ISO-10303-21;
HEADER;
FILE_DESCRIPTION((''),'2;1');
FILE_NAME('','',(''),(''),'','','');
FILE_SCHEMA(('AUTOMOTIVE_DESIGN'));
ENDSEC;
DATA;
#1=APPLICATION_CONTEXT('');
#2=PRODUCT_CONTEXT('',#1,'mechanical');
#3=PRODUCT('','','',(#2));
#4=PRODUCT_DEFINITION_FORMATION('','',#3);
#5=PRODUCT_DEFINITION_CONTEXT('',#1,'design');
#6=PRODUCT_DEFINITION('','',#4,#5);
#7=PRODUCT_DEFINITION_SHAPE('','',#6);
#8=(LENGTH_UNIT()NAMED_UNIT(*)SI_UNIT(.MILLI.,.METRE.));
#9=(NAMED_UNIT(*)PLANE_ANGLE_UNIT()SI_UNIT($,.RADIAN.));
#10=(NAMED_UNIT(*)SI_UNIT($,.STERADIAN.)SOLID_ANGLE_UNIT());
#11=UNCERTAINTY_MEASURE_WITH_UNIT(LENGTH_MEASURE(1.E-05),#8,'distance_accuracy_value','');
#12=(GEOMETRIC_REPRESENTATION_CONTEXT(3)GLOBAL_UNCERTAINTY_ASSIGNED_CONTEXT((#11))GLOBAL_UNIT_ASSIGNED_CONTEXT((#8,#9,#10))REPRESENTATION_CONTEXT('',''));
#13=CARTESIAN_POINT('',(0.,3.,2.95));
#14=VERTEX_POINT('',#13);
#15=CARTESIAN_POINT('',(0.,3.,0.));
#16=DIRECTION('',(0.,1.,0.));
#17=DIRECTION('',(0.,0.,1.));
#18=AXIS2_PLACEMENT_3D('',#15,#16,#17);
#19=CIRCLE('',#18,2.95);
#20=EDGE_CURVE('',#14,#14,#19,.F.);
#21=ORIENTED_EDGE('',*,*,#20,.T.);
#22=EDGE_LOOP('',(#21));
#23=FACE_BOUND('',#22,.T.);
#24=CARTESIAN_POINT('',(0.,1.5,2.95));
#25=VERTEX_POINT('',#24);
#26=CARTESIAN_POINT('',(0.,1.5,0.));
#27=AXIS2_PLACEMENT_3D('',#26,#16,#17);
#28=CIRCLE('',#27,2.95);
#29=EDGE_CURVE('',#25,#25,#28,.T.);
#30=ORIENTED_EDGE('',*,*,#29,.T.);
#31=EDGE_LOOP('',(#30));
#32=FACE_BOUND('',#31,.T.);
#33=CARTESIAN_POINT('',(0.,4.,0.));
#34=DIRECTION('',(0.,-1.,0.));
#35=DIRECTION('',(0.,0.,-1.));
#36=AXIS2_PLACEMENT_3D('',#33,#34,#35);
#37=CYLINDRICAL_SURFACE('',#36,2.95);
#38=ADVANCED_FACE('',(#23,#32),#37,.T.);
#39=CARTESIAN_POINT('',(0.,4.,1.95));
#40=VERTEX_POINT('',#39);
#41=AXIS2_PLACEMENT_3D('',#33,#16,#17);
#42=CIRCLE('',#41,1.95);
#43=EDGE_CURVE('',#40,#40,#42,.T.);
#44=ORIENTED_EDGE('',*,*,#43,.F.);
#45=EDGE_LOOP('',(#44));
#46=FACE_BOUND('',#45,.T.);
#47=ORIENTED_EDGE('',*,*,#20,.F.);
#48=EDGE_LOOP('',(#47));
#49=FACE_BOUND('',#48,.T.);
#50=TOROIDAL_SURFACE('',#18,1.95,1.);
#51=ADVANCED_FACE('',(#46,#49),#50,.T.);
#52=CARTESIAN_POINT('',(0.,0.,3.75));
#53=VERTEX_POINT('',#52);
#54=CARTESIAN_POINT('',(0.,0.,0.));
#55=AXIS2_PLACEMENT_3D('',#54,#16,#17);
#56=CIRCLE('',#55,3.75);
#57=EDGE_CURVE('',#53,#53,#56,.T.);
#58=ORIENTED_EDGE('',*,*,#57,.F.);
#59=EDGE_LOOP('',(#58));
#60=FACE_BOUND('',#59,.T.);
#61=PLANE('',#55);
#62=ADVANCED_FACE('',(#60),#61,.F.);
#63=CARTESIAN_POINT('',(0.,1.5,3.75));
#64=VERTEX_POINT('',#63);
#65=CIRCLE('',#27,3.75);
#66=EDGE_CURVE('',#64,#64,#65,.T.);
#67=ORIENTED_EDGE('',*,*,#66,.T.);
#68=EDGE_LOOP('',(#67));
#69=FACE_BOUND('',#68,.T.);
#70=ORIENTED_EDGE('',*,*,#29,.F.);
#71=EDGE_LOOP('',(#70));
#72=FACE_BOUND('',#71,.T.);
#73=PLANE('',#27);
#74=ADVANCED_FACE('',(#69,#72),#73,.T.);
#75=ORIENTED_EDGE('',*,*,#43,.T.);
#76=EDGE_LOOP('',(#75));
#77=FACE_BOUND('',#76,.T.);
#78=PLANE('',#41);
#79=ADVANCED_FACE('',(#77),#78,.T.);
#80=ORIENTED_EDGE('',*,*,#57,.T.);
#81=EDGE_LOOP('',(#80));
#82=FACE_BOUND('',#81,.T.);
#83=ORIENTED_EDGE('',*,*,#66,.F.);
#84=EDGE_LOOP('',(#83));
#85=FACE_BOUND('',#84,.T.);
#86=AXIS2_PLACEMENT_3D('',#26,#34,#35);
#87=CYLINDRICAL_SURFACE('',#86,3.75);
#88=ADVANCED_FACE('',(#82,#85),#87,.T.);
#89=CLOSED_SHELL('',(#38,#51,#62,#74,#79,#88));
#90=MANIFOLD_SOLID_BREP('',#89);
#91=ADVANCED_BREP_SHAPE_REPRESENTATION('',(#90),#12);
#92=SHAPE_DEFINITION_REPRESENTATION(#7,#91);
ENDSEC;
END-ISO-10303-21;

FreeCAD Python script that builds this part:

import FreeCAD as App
import Part
import Sketcher

V = App.Vector
Q = App.Units.Quantity


def edges_at(feature, points):
    """Names of the edges that pass closest to the given points."""
    edges = feature.Shape.Edges
    near = lambda p: min(range(len(edges)), key=lambda i: edges[i].distToShape(Part.Vertex(*p))[0])
    return sorted({f"Edge{near(p) + 1}" for p in points})

doc = App.newDocument("Part")
body = doc.addObject("PartDesign::Body", "Body")

# Sketch on XZ plane
sketch1 = doc.addObject("Sketcher::SketchObject", "Sketch")
body.addObject(sketch1)
sketch1.AttachmentSupport = (doc.XZ_Plane, [""])
sketch1.MapMode = "FlatFace"
sketch1.addGeometry(Part.Circle(V(0, 0, 0), V(0, 0, 1), 3.8), False)
sketch1.addConstraint([
    Sketcher.Constraint("Coincident", 0, 3, -1, 1),
    Sketcher.Constraint("Diameter", 0, Q("7.5 mm")),
])
pad1 = doc.addObject("PartDesign::Pad", "Pad")
body.addObject(pad1)
pad1.Profile = sketch1
pad1.Length = 1.5
pad1.Reversed = True

# Sketch on XZ plane
sketch2 = doc.addObject("Sketcher::SketchObject", "Sketch001")
body.addObject(sketch2)
sketch2.AttachmentSupport = (doc.XZ_Plane, [""])
sketch2.MapMode = "FlatFace"
sketch2.AttachmentOffset = App.Placement(V(0, 0, -1.5), App.Rotation())
sketch2.addGeometry(Part.Circle(V(0, 0, 0), V(0, 0, 1), 3), False)
sketch2.addConstraint([
    Sketcher.Constraint("Coincident", 0, 3, -1, 1),
    Sketcher.Constraint("Diameter", 0, Q("5.9 mm")),
])
pad2 = doc.addObject("PartDesign::Pad", "Pad001")
body.addObject(pad2)
pad2.Profile = sketch2
pad2.Length = 2.5
pad2.Reversed = True
doc.recompute()

fillet = doc.addObject("PartDesign::Fillet", "Fillet")
body.addObject(fillet)
fillet.Base = (pad2, edges_at(pad2, [(0, 4, -2.95)]))
fillet.Radius = 1

doc.recompute()
